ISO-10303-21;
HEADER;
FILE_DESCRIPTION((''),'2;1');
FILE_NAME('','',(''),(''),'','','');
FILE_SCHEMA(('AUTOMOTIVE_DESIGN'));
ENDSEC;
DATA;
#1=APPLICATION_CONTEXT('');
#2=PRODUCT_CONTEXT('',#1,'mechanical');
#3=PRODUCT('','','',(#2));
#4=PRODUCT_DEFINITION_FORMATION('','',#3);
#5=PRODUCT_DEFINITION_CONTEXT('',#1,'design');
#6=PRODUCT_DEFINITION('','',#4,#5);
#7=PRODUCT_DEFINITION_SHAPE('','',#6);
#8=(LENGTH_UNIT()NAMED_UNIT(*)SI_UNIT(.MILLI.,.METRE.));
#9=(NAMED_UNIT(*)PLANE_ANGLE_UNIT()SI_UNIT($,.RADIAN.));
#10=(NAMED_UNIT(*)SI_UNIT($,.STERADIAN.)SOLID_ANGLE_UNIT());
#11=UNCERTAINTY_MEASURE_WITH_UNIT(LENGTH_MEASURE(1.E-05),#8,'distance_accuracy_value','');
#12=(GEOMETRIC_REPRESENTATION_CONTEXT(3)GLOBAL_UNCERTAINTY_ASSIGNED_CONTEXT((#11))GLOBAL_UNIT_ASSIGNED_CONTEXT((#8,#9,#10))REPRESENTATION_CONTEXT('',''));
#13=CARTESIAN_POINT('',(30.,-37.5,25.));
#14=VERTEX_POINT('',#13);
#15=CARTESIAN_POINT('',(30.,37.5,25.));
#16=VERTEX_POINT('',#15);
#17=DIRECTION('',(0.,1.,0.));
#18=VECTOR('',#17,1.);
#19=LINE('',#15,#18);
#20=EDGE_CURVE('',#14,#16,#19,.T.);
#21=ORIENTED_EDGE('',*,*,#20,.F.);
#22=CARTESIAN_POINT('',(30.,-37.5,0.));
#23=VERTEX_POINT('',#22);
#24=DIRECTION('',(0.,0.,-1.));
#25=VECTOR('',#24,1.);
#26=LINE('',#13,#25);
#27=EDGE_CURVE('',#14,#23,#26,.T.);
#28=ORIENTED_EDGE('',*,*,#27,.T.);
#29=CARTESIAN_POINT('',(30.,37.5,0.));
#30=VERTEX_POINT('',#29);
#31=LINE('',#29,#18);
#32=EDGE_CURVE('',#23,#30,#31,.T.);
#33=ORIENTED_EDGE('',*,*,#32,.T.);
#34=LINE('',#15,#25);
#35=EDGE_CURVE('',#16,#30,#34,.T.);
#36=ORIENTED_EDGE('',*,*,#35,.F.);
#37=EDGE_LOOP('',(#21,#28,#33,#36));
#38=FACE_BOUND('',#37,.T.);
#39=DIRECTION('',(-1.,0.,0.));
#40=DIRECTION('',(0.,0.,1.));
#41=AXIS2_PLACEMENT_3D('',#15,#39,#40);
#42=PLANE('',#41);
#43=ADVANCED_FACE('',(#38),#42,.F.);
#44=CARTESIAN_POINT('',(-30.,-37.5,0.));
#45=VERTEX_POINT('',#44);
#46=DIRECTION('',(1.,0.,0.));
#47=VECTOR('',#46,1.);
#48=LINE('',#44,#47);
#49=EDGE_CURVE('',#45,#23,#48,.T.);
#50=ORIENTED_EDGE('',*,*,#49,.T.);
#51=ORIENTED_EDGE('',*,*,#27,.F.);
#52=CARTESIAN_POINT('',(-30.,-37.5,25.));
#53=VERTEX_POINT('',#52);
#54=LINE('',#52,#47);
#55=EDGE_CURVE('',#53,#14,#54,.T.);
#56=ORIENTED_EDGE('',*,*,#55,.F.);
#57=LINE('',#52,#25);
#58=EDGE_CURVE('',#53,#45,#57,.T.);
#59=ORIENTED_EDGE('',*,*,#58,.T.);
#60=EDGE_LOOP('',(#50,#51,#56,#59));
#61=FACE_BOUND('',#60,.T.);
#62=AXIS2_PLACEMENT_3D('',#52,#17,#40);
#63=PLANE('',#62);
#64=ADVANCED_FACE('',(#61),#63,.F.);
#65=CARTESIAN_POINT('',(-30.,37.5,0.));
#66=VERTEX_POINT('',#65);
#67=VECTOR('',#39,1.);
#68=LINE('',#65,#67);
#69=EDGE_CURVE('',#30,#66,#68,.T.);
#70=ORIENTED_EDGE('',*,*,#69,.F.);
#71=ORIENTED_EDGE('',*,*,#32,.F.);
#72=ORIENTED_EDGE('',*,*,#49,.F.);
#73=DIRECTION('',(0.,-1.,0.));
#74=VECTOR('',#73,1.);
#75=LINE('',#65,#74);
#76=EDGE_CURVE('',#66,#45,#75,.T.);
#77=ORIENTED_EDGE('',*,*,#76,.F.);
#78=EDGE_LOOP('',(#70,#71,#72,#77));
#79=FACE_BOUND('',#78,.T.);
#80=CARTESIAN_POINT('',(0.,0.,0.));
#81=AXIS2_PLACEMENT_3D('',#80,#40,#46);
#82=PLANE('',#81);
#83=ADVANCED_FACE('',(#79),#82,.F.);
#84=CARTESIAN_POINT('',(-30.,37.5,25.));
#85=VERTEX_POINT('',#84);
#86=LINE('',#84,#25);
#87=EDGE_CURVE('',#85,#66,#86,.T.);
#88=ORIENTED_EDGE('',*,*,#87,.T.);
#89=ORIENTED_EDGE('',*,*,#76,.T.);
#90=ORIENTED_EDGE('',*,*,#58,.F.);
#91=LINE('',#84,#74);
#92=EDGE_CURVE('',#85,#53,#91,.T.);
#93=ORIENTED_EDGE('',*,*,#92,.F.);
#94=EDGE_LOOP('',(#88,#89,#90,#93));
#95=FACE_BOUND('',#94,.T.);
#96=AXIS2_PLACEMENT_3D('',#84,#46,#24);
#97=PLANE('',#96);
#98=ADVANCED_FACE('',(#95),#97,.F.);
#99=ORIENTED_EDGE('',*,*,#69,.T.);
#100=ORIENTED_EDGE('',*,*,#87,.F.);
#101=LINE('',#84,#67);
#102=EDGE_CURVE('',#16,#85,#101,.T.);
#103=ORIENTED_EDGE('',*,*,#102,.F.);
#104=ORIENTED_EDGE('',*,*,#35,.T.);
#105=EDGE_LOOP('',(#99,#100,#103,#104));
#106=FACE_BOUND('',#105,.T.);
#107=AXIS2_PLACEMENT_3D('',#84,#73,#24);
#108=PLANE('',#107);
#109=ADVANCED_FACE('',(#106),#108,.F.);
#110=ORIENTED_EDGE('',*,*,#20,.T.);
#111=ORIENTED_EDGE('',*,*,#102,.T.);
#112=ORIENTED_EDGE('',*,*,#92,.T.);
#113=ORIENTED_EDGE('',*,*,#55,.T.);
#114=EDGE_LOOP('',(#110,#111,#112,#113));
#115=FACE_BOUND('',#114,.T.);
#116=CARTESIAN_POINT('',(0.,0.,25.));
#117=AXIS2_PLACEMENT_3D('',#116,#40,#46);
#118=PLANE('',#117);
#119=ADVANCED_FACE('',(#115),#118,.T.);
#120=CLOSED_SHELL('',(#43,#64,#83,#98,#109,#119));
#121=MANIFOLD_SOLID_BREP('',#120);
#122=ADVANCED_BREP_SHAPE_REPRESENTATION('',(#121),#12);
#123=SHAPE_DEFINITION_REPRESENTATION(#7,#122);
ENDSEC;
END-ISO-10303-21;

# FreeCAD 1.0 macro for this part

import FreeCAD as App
import Part
import Sketcher
from FreeCAD import Vector
Q = App.Units.Quantity


def add_polygon(sketch, points):
    """Adds a closed chain of lines whose ends are joined by coincident constraints."""
    first, n = sketch.GeometryCount, len(points)
    for a, b in zip(points, points[1:] + points[:1]):
        sketch.addGeometry(Part.LineSegment(App.Vector(*a, 0), App.Vector(*b, 0)), False)
    for i in range(n):
        sketch.addConstraint(Sketcher.Constraint("Coincident", first + i, 2, first + (i + 1) % n, 1))

doc = App.newDocument("Part")
body = doc.addObject("PartDesign::Body", "Body")

# Sketch on XY plane
sketch1 = body.newObject("Sketcher::SketchObject", "Sketch")
sketch1.AttachmentSupport = (doc.getObject("XY_Plane"), [""])
sketch1.MapMode = "FlatFace"
add_polygon(sketch1, [(-30, 38), (-30, -38), (30, -38), (30, 38)])  # lines 0-3
sketch1.addConstraint(Sketcher.Constraint("Vertical", 0))
sketch1.addConstraint(Sketcher.Constraint("Horizontal", 1))
sketch1.addConstraint(Sketcher.Constraint("Vertical", 2))
sketch1.addConstraint(Sketcher.Constraint("Horizontal", 3))
sketch1.addConstraint(Sketcher.Constraint("Symmetric", 0, 2, 2, 2, -1, 1))
sketch1.addConstraint(Sketcher.Constraint("DistanceX", 1, 1, 1, 2, Q("60 mm")))
sketch1.addConstraint(Sketcher.Constraint("DistanceY", 0, 2, 0, 1, Q("75 mm")))
pad1 = body.newObject("PartDesign::Pad", "Pad")
pad1.Profile = sketch1
pad1.Length = 25

doc.recompute()
